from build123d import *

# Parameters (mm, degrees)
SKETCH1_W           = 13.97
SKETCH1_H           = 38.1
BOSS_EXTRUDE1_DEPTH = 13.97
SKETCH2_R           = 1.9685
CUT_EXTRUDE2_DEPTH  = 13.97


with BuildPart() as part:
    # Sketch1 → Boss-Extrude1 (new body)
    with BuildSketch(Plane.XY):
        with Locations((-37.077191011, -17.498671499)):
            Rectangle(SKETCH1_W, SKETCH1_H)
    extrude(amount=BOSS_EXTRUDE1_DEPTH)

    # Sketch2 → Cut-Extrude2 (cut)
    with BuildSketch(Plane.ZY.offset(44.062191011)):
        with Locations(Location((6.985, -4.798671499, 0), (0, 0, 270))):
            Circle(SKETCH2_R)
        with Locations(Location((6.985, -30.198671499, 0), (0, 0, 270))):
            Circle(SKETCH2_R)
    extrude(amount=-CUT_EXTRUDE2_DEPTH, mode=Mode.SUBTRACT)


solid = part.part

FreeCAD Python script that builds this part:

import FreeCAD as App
import Part
import Sketcher

V = App.Vector
Q = App.Units.Quantity

doc = App.newDocument("Part")
body = doc.addObject("PartDesign::Body", "Body")

sketch1 = body.newObject("Sketcher::SketchObject", "Sketch")
sketch1.AttachmentSupport = (doc.getObject("XY_Plane"), [""])
sketch1.MapMode = "FlatFace"
sketch1.addGeometry([
    Part.LineSegment(V(-44, 2, 0), V(-44, -37, 0)),
    Part.LineSegment(V(-44, -37, 0), V(-30, -37, 0)),
    Part.LineSegment(V(-30, -37, 0), V(-30, 2, 0)),
    Part.LineSegment(V(-30, 2, 0), V(-44, 2, 0)),
], False)
sketch1.addConstraint([
    Sketcher.Constraint("Coincident", 0, 2, 1, 1),
    Sketcher.Constraint("Coincident", 1, 2, 2, 1),
    Sketcher.Constraint("Coincident", 2, 2, 3, 1),
    Sketcher.Constraint("Coincident", 3, 2, 0, 1),
    Sketcher.Constraint("Vertical", 0),
    Sketcher.Constraint("Horizontal", 1),
    Sketcher.Constraint("Vertical", 2),
    Sketcher.Constraint("Horizontal", 3),
    Sketcher.Constraint("DistanceY", 0, 2, 0, 1, Q("1.5 in")),
    Sketcher.Constraint("DistanceX", 1, 1, 1, 2, Q("0.55 in")),
    Sketcher.Constraint("DistanceX", 0, 2, -1, 1, 44.062191),
    Sketcher.Constraint("DistanceY", 0, 2, -1, 1, 36.548671),
])
pad1 = body.newObject("PartDesign::Pad", "Pad")
pad1.Profile = sketch1
pad1.Length = Q("0.55 in")

sketch2 = body.newObject("Sketcher::SketchObject", "Sketch001")
sketch2.AttachmentSupport = (doc.getObject("YZ_Plane"), [""])
sketch2.MapMode = "FlatFace"
sketch2.AttachmentOffset = App.Placement(V(0, 0, -44.062191), App.Rotation())
sketch2.addGeometry([
    Part.Circle(V(-4.8, 7, 0), V(0, 0, 1), 2),
    Part.Circle(V(-30.2, 7, 0), V(0, 0, 1), 2),
], False)
sketch2.addConstraint([
    Sketcher.Constraint("Equal", 0, 1),
    Sketcher.Constraint("Horizontal", 0, 3, 1, 3),
    Sketcher.Constraint("Diameter", 0, Q("0.155 in")),
    Sketcher.Constraint("DistanceX", 1, 3, 0, 3, Q("1 in")),
    Sketcher.Constraint("DistanceY", -1, 1, 0, 3, Q("0.275 in")),
    Sketcher.Constraint("DistanceX", 0, 3, -1, 1, 4.798671),
])
pocket1 = body.newObject("PartDesign::Pocket", "Pocket")
pocket1.Profile = sketch2
pocket1.Length = Q("0.55 in")
pocket1.Reversed = True

doc.recompute()
